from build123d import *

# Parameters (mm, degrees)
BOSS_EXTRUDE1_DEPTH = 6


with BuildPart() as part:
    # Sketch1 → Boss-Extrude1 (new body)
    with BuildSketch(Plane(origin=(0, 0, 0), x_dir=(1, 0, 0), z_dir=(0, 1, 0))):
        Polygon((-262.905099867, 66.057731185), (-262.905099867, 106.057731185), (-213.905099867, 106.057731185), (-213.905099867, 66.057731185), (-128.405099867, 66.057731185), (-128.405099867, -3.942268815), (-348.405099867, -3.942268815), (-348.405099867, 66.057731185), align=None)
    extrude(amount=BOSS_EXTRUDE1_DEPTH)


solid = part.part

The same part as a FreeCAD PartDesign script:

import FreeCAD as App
import Part
import Sketcher
from FreeCAD import Vector

doc = App.newDocument("Part")
body = doc.addObject("PartDesign::Body", "Body")

sketch1 = body.newObject("Sketcher::SketchObject", "Sketch")
sketch1.AttachmentSupport = (doc.getObject("XZ_Plane"), [""])
sketch1.MapMode = "FlatFace"
sketch1.addGeometry(Part.LineSegment(Vector(-263, -106, 0), Vector(-263, -66, 0)), False)
sketch1.addGeometry(Part.LineSegment(Vector(-263, -66, 0), Vector(-348, -66, 0)), False)
sketch1.addGeometry(Part.LineSegment(Vector(-348, -66, 0), Vector(-348, 4, 0)), False)
sketch1.addGeometry(Part.LineSegment(Vector(-348, 4, 0), Vector(-128, 4, 0)), False)
sketch1.addGeometry(Part.LineSegment(Vector(-128, 4, 0), Vector(-128, -66, 0)), False)
sketch1.addGeometry(Part.LineSegment(Vector(-128, -66, 0), Vector(-214, -66, 0)), False)
sketch1.addGeometry(Part.LineSegment(Vector(-214, -66, 0), Vector(-214, -106, 0)), False)
sketch1.addGeometry(Part.LineSegment(Vector(-214, -106, 0), Vector(-263, -106, 0)), False)
sketch1.addConstraint(Sketcher.Constraint("Coincident", 0, 2, 1, 1))
sketch1.addConstraint(Sketcher.Constraint("Coincident", 1, 2, 2, 1))
sketch1.addConstraint(Sketcher.Constraint("Coincident", 2, 2, 3, 1))
sketch1.addConstraint(Sketcher.Constraint("Coincident", 3, 2, 4, 1))
sketch1.addConstraint(Sketcher.Constraint("Coincident", 4, 2, 5, 1))
sketch1.addConstraint(Sketcher.Constraint("Coincident", 5, 2, 6, 1))
sketch1.addConstraint(Sketcher.Constraint("Coincident", 6, 2, 7, 1))
sketch1.addConstraint(Sketcher.Constraint("Coincident", 7, 2, 0, 1))
sketch1.addConstraint(Sketcher.Constraint("Vertical", 0))
sketch1.addConstraint(Sketcher.Constraint("Horizontal", 1))
sketch1.addConstraint(Sketcher.Constraint("Vertical", 2))
sketch1.addConstraint(Sketcher.Constraint("Horizontal", 3))
sketch1.addConstraint(Sketcher.Constraint("Vertical", 4))
sketch1.addConstraint(Sketcher.Constraint("Horizontal", 5))
sketch1.addConstraint(Sketcher.Constraint("Vertical", 6))
sketch1.addConstraint(Sketcher.Constraint("Horizontal", 7))
sketch1.addConstraint(Sketcher.Constraint("Horizontal", 1, 2, 4, 2))
sketch1.addConstraint(Sketcher.Constraint("Equal", 1, 5))
sketch1.addConstraint(Sketcher.Constraint("DistanceX", 3, 1, 3, 2, 220.0))
sketch1.addConstraint(Sketcher.Constraint("DistanceX", 7, 2, 7, 1, 49.0))
sketch1.addConstraint(Sketcher.Constraint("DistanceY", 0, 1, 0, 2, 40.0))
sketch1.addConstraint(Sketcher.Constraint("DistanceY", 2, 1, 2, 2, 70.0))
sketch1.addConstraint(Sketcher.Constraint("DistanceX", 0, 2, -1, 1, 262.9051))
sketch1.addConstraint(Sketcher.Constraint("DistanceY", 0, 2, -1, 1, 66.057731))
pad1 = body.newObject("PartDesign::Pad", "Pad")
pad1.Profile = sketch1
pad1.Length = 6
pad1.Reversed = True

doc.recompute()
